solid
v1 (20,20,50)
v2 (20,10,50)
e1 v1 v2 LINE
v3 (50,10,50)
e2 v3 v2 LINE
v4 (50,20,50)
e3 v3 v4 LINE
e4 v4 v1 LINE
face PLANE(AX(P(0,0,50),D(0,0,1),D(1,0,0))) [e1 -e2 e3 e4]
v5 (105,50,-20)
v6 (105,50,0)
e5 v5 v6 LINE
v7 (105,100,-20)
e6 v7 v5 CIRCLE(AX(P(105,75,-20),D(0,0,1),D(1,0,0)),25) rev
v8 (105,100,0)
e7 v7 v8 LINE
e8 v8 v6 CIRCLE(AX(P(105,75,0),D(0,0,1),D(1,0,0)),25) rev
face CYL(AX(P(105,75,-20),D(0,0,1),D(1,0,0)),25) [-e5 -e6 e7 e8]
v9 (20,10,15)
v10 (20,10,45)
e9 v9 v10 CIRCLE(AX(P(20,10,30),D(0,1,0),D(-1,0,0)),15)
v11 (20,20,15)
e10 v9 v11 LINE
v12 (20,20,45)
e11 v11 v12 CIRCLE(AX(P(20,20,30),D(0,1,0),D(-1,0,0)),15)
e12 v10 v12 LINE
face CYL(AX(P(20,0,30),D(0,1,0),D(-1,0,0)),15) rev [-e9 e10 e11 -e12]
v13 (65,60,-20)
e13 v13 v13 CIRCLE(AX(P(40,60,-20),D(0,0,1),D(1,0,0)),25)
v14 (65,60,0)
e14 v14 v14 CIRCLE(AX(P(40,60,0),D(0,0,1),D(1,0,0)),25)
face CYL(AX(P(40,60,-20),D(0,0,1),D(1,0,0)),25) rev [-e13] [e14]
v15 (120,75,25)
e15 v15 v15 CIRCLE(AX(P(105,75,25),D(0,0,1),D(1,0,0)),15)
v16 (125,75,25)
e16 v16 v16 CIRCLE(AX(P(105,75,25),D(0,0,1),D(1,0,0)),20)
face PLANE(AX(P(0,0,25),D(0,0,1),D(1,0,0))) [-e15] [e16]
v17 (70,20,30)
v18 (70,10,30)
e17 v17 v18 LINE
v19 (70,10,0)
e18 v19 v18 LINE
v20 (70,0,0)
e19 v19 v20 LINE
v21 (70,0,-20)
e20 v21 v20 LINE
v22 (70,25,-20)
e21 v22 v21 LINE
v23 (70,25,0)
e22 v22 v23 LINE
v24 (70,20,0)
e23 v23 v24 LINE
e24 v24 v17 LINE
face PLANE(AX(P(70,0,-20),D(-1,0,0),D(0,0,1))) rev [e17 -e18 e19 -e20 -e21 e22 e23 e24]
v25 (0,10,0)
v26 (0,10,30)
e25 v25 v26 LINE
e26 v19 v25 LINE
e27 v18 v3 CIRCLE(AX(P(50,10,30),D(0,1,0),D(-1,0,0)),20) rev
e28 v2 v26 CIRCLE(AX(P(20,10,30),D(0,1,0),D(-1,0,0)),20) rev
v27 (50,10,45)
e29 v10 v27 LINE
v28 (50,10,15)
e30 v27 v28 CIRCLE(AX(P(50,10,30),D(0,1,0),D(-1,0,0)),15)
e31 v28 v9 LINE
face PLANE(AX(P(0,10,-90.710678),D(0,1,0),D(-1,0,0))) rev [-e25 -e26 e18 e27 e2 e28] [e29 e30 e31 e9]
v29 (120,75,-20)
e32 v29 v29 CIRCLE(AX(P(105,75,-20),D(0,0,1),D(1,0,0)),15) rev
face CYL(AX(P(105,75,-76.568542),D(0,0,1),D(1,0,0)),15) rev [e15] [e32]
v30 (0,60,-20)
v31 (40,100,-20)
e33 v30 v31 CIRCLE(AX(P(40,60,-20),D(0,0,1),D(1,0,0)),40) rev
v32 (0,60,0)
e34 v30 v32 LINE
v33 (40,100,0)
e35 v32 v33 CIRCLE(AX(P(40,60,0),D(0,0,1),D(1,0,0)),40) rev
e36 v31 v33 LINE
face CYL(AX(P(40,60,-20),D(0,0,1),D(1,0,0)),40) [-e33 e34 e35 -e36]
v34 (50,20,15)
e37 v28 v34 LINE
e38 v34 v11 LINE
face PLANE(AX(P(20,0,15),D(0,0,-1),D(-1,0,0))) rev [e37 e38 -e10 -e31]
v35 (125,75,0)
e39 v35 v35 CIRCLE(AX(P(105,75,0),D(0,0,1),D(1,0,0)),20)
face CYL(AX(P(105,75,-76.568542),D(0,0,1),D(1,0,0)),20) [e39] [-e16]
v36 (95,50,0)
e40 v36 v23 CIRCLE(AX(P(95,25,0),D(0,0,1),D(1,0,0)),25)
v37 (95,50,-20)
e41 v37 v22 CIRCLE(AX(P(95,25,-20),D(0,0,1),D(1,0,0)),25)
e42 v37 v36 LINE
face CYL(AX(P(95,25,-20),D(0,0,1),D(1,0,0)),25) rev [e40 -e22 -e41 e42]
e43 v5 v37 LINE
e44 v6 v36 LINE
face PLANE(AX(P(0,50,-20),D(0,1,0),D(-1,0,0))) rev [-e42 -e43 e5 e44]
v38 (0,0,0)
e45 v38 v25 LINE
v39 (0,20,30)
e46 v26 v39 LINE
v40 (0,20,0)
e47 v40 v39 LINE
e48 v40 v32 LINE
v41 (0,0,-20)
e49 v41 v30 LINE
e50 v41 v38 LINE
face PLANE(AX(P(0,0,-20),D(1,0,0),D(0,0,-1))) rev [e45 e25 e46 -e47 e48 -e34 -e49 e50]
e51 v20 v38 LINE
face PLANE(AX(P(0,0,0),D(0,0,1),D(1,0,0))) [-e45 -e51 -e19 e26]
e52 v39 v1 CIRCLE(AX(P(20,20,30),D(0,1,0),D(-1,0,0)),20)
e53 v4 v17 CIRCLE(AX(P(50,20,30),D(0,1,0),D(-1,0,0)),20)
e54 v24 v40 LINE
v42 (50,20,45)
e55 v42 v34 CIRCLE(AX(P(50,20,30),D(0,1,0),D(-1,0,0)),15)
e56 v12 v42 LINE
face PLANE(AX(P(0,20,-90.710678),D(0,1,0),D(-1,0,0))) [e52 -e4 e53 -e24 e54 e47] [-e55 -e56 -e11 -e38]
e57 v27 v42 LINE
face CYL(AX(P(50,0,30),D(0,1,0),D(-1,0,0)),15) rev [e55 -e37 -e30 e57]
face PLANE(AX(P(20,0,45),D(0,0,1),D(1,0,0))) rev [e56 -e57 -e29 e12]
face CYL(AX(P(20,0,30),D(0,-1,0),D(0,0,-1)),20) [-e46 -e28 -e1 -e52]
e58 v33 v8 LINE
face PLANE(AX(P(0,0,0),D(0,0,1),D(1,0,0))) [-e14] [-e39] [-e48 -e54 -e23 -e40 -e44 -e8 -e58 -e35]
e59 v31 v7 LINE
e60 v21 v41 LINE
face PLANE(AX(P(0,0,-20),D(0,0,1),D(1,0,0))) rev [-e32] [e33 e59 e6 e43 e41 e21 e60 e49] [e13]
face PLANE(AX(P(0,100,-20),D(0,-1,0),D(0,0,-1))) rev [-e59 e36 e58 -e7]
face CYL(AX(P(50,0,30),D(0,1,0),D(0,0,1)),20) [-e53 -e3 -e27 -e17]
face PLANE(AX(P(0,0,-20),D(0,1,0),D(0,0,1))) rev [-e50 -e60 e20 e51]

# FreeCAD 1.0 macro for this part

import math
import FreeCAD as App
import Part
import Sketcher

V = App.Vector


def edges_at(feature, points):
    """Names of the edges that pass closest to the given points."""
    edges = feature.Shape.Edges
    near = lambda p: min(range(len(edges)), key=lambda i: edges[i].distToShape(Part.Vertex(*p))[0])
    return sorted({f"Edge{near(p) + 1}" for p in points})

doc = App.newDocument("Part")
body = doc.addObject("PartDesign::Body", "Body")

sketch1 = doc.addObject("Sketcher::SketchObject", "Sketch")
body.addObject(sketch1)
sketch1.AttachmentSupport = (doc.XY_Plane, [""])
sketch1.MapMode = "FlatFace"
sketch1.addGeometry([
    Part.LineSegment(V(0, 60, 0), V(0, 20, 0)),
    Part.LineSegment(V(0, 20, 0), V(70, 20, 0)),
    Part.LineSegment(V(70, 20, 0), V(70, 25, 0)),
    Part.ArcOfCircle(Part.Circle(V(95, 25, 0), V(0, 0, 1), 25), math.radians(90), math.radians(180)),
    Part.LineSegment(V(95, 50, 0), V(105, 50, 0)),
    Part.ArcOfCircle(Part.Circle(V(105, 75, 0), V(0, 0, 1), 25), math.radians(-90), math.radians(90)),
    Part.LineSegment(V(105, 100, 0), V(40, 100, 0)),
    Part.ArcOfCircle(Part.Circle(V(40, 60, 0), V(0, 0, 1), 40), math.radians(90), math.radians(180)),
    Part.Circle(V(40, 60, 0), V(0, 0, 1), 25),
    Part.Circle(V(105, 75, 0), V(0, 0, 1), 20),
], False)
sketch1.addConstraint([
    Sketcher.Constraint("Coincident", 0, 2, 1, 1),
    Sketcher.Constraint("Coincident", 1, 2, 2, 1),
    Sketcher.Constraint("Tangent", 2, 2, 3, 2),
    Sketcher.Constraint("Tangent", 3, 1, 4, 1),
    Sketcher.Constraint("Tangent", 4, 2, 5, 1),
    Sketcher.Constraint("Tangent", 5, 2, 6, 1),
    Sketcher.Constraint("Tangent", 6, 2, 7, 1),
    Sketcher.Constraint("Tangent", 7, 2, 0, 1),
    Sketcher.Constraint("Vertical", 0),
    Sketcher.Constraint("Horizontal", 1),
    Sketcher.Constraint("Vertical", 2),
    Sketcher.Constraint("Horizontal", 4),
    Sketcher.Constraint("Horizontal", 6),
    Sketcher.Constraint("Coincident", 8, 3, 7, 3),
    Sketcher.Constraint("Coincident", 9, 3, 5, 3),
    Sketcher.Constraint("Equal", 3, 5),
    Sketcher.Constraint("Equal", 5, 8),
    Sketcher.Constraint("PointOnObject", 0, 2, -2),
    Sketcher.Constraint("Diameter", 8, 50.0),
    Sketcher.Constraint("Diameter", 9, 40.0),
    Sketcher.Constraint("Radius", 7, 40.0),
    Sketcher.Constraint("DistanceX", 1, 1, 1, 2, 70.0),
    Sketcher.Constraint("DistanceX", 4, 1, 4, 2, 10.0),
    Sketcher.Constraint("DistanceY", 0, 2, 0, 1, 40.0),
    Sketcher.Constraint("DistanceY", -1, 1, 3, 3, 25.0),
])
pad1 = doc.addObject("PartDesign::Pad", "Pad")
body.addObject(pad1)
pad1.Profile = sketch1
pad1.Length = 20
pad1.Reversed = True
body2 = doc.addObject("PartDesign::Body", "Body001")

sketch2 = doc.addObject("Sketcher::SketchObject", "Sketch001")
body2.addObject(sketch2)
sketch2.AttachmentSupport = (doc.getObject("XY_Plane001"), [""])
sketch2.MapMode = "FlatFace"
sketch2.addGeometry([
    Part.LineSegment(V(0, 10, 0), V(0, 0, 0)),
    Part.LineSegment(V(0, 0, 0), V(70, 0, 0)),
    Part.LineSegment(V(70, 0, 0), V(70, 10, 0)),
    Part.LineSegment(V(70, 10, 0), V(0, 10, 0)),
], False)
sketch2.addConstraint([
    Sketcher.Constraint("Coincident", 0, 2, 1, 1),
    Sketcher.Constraint("Coincident", 1, 2, 2, 1),
    Sketcher.Constraint("Coincident", 2, 2, 3, 1),
    Sketcher.Constraint("Coincident", 3, 2, 0, 1),
    Sketcher.Constraint("Vertical", 0),
    Sketcher.Constraint("Horizontal", 1),
    Sketcher.Constraint("Vertical", 2),
    Sketcher.Constraint("Horizontal", 3),
    Sketcher.Constraint("Coincident", 0, 2, -1, 1),
    Sketcher.Constraint("DistanceX", 1, 1, 1, 2, 70.0),
    Sketcher.Constraint("DistanceY", 0, 2, 0, 1, 10.0),
])
pad2 = doc.addObject("PartDesign::Pad", "Pad001")
body2.addObject(pad2)
pad2.Profile = sketch2
pad2.Length = 20
pad2.Reversed = True
body.AllowCompound = True
doc.recompute()

boolean = doc.addObject("PartDesign::Boolean", "Boolean")
body.addObject(boolean)
boolean.Type = "Fuse"
boolean.addObjects([body2])

sketch3 = doc.addObject("Sketcher::SketchObject", "Sketch002")
body.addObject(sketch3)
sketch3.AttachmentSupport = (doc.XY_Plane, [""])
sketch3.MapMode = "FlatFace"
sketch3.addGeometry([
    Part.LineSegment(V(0, 20, 0), V(0, 10, 0)),
    Part.LineSegment(V(0, 10, 0), V(70, 10, 0)),
    Part.LineSegment(V(70, 10, 0), V(70, 20, 0)),
    Part.LineSegment(V(70, 20, 0), V(0, 20, 0)),
], False)
sketch3.addConstraint([
    Sketcher.Constraint("Coincident", 0, 2, 1, 1),
    Sketcher.Constraint("Coincident", 1, 2, 2, 1),
    Sketcher.Constraint("Coincident", 2, 2, 3, 1),
    Sketcher.Constraint("Coincident", 3, 2, 0, 1),
    Sketcher.Constraint("Vertical", 0),
    Sketcher.Constraint("Horizontal", 1),
    Sketcher.Constraint("Vertical", 2),
    Sketcher.Constraint("Horizontal", 3),
    Sketcher.Constraint("PointOnObject", 0, 2, -2),
    Sketcher.Constraint("DistanceX", 1, 1, 1, 2, 70.0),
    Sketcher.Constraint("DistanceY", 0, 2, 0, 1, 10.0),
    Sketcher.Constraint("DistanceY", -1, 1, 0, 2, 10.0),
])
pad3 = doc.addObject("PartDesign::Pad", "Pad002")
body.addObject(pad3)
pad3.Profile = sketch3
pad3.Type = "TwoLengths"
pad3.Length = 50
pad3.Length2 = 20

sketch4 = doc.addObject("Sketcher::SketchObject", "Sketch003")
body.addObject(sketch4)
sketch4.AttachmentSupport = (doc.XY_Plane, [""])
sketch4.MapMode = "FlatFace"
sketch4.addGeometry([
    Part.Circle(V(105, 75, 0), V(0, 0, 1), 20),
    Part.Circle(V(105, 75, 0), V(0, 0, 1), 15),
], False)
sketch4.addConstraint([
    Sketcher.Constraint("Coincident", 1, 3, 0, 3),
    Sketcher.Constraint("Diameter", 0, 40.0),
    Sketcher.Constraint("Diameter", 1, 30.0),
    Sketcher.Constraint("DistanceX", -1, 1, 0, 3, 105.0),
    Sketcher.Constraint("DistanceY", -1, 1, 0, 3, 75.0),
])
pad4 = doc.addObject("PartDesign::Pad", "Pad003")
body.addObject(pad4)
pad4.Profile = sketch4
pad4.Type = "TwoLengths"
pad4.Length = 25
pad4.Length2 = 20
doc.recompute()

fillet = doc.addObject("PartDesign::Fillet", "Fillet")
body.addObject(fillet)
fillet.Base = (pad4, edges_at(pad4, [(70, 15, 50), (0, 15, 50)]))
fillet.Radius = 20

sketch5 = doc.addObject("Sketcher::SketchObject", "Sketch004")
body.addObject(sketch5)
sketch5.AttachmentSupport = (doc.XZ_Plane, [""])
sketch5.MapMode = "FlatFace"
sketch5.AttachmentOffset = App.Placement(V(0, 0, -20), App.Rotation())
sketch5.addGeometry([
    Part.LineSegment(V(50, 15, 0), V(20, 15, 0)),
    Part.ArcOfCircle(Part.Circle(V(20, 30, 0), V(0, 0, 1), 15), math.radians(90), math.radians(270)),
    Part.LineSegment(V(20, 45, 0), V(50, 45, 0)),
    Part.ArcOfCircle(Part.Circle(V(50, 30, 0), V(0, 0, 1), 15), math.radians(-90), math.radians(90)),
], False)
sketch5.addConstraint([
    Sketcher.Constraint("Tangent", 0, 2, 1, 2),
    Sketcher.Constraint("Tangent", 1, 1, 2, 1),
    Sketcher.Constraint("Tangent", 2, 2, 3, 2),
    Sketcher.Constraint("Tangent", 3, 1, 0, 1),
    Sketcher.Constraint("Horizontal", 0),
    Sketcher.Constraint("Horizontal", 2),
    Sketcher.Constraint("Radius", 1, 15.0),
    Sketcher.Constraint("DistanceX", 0, 2, 0, 1, 30.0),
    Sketcher.Constraint("DistanceX", -1, 1, 1, 3, 20.0),
    Sketcher.Constraint("DistanceY", -1, 1, 1, 3, 30.0),
])
pocket1 = doc.addObject("PartDesign::Pocket", "Pocket")
body.addObject(pocket1)
pocket1.Profile = sketch5
pocket1.Type = "ThroughAll"
pocket1.Reversed = True

doc.recompute()
